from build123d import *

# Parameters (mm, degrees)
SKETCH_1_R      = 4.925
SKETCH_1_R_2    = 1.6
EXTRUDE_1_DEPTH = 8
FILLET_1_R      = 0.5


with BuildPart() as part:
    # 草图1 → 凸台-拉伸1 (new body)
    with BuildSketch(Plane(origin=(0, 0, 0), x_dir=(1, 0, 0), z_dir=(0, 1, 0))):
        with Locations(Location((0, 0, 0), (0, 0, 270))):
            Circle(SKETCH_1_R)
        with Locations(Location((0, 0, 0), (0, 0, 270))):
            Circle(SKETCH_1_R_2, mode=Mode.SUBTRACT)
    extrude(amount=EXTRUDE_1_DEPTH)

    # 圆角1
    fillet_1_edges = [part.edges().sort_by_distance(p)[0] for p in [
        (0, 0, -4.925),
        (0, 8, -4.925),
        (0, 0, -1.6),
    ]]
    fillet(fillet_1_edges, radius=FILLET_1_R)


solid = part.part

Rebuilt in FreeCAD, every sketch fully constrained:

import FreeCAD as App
import Part
import Sketcher
from FreeCAD import Vector
Q = App.Units.Quantity


def edges_at(feature, points):
    """Names of the edges that pass closest to the given points."""
    edges = feature.Shape.Edges
    near = lambda p: min(range(len(edges)), key=lambda i: edges[i].distToShape(Part.Vertex(*p))[0])
    return sorted({f"Edge{near(p) + 1}" for p in points})

doc = App.newDocument("Part")
params = doc.addObject("Spreadsheet::Sheet", "Params")
for row, (alias, value) in enumerate([
    ("sketch1_diameter", "3.2 mm"),
    ("sketch1_diameter2", "9.85 mm"),
    ("pad1_length", "8 mm"),
    ("fillet_radius", "0.5 mm"),
], start=1):
    params.set(f"A{row}", alias)
    params.set(f"B{row}", "=" + value)
    params.setAlias(f"B{row}", alias)

body = doc.addObject("PartDesign::Body", "Body")

sketch1 = body.newObject("Sketcher::SketchObject", "Sketch")
sketch1.AttachmentSupport = (doc.getObject("XZ_Plane"), [""])
sketch1.MapMode = "FlatFace"
sketch1.addGeometry([
    Part.Circle(Vector(0, 0, 0), Vector(0, 0, 1), 4.9),
    Part.Circle(Vector(0, 0, 0), Vector(0, 0, 1), 1.6),
], False)
sketch1.addConstraint([
    Sketcher.Constraint("Coincident", 0, 3, -1, 1),
    Sketcher.Constraint("Coincident", 1, 3, -1, 1),
    Sketcher.Constraint("Diameter", 1, Q("3.2 mm")),
    Sketcher.Constraint("Diameter", 0, Q("9.85 mm")),
])
sketch1.setExpression("Constraints[2]", "Params.sketch1_diameter")
sketch1.setExpression("Constraints[3]", "Params.sketch1_diameter2")
pad1 = body.newObject("PartDesign::Pad", "Pad")
pad1.Profile = sketch1
pad1.setExpression("Length", "Params.pad1_length")
pad1.Reversed = True
doc.recompute()

fillet = body.newObject("PartDesign::Fillet", "Fillet")
fillet.Base = (pad1, edges_at(pad1, [(0, 0, -4.925), (0, 8, -4.925), (0, 0, -1.6)]))
fillet.setExpression("Radius", "Params.fillet_radius")

doc.recompute()
